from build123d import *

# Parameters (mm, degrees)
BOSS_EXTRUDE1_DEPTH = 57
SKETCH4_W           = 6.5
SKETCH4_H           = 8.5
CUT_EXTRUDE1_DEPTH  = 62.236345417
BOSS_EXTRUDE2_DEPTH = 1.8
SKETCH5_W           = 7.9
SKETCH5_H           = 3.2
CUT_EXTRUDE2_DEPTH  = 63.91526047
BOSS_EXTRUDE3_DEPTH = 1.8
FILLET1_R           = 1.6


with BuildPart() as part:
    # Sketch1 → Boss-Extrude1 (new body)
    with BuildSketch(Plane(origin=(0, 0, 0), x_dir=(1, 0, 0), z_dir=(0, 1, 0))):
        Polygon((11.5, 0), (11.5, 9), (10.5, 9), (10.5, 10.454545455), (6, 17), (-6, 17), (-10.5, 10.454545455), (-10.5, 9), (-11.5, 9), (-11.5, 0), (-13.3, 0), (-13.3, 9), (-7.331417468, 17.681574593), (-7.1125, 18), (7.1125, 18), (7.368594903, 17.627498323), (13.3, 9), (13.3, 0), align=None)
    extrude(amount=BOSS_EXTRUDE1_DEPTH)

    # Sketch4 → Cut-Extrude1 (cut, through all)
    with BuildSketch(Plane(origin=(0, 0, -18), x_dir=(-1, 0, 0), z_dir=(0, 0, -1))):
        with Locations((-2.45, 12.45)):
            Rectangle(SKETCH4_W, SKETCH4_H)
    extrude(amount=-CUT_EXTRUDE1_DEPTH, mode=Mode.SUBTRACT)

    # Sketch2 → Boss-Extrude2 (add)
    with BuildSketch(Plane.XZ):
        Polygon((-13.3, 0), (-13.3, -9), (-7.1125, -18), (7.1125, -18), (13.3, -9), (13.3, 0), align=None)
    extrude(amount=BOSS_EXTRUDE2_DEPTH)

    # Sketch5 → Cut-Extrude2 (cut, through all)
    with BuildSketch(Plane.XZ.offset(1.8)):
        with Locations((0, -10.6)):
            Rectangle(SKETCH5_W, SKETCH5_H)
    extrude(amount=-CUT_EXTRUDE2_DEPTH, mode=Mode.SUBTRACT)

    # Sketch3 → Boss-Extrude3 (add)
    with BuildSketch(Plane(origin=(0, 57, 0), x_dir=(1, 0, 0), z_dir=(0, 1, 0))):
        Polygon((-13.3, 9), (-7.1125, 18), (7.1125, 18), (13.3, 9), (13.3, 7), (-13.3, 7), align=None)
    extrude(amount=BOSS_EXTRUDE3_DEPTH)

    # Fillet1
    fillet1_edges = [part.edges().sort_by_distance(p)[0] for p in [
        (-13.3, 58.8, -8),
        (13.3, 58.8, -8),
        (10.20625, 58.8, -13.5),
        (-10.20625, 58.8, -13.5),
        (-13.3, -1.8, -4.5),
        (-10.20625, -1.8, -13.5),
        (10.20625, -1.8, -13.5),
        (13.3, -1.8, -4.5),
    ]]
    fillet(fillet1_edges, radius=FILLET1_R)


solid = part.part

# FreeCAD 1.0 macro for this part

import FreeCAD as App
import Part
import Sketcher
from FreeCAD import Vector


def edges_at(feature, points):
    """Names of the edges that pass closest to the given points."""
    edges = feature.Shape.Edges
    near = lambda p: min(range(len(edges)), key=lambda i: edges[i].distToShape(Part.Vertex(*p))[0])
    return sorted({f"Edge{near(p) + 1}" for p in points})


def add_polygon(sketch, points):
    """Adds a closed chain of lines whose ends are joined by coincident constraints."""
    first, n = sketch.GeometryCount, len(points)
    for a, b in zip(points, points[1:] + points[:1]):
        sketch.addGeometry(Part.LineSegment(App.Vector(*a, 0), App.Vector(*b, 0)), False)
    for i in range(n):
        sketch.addConstraint(Sketcher.Constraint("Coincident", first + i, 2, first + (i + 1) % n, 1))

doc = App.newDocument("Part")
body = doc.addObject("PartDesign::Body", "Body")

sketch1 = doc.addObject("Sketcher::SketchObject", "Sketch")
body.addObject(sketch1)
sketch1.AttachmentSupport = (doc.XZ_Plane, [""])
sketch1.MapMode = "FlatFace"
add_polygon(sketch1, [(11.5, -9), (11.5, 0), (13.3, 0), (13.3, -9), (7.37, -17.63), (7.11, -18), (-7.11, -18), (-7.33, -17.68), (-13.3, -9), (-13.3, 0), (-11.5, 0), (-11.5, -9), (-10.5, -9), (-10.5, -10.45), (-6, -17), (6, -17), (10.5, -10.45), (10.5, -9)])
sketch1.addConstraint(Sketcher.Constraint("Vertical", 0))
sketch1.addConstraint(Sketcher.Constraint("Horizontal", 1))
sketch1.addConstraint(Sketcher.Constraint("Vertical", 2))
sketch1.addConstraint(Sketcher.Constraint("Horizontal", 5))
sketch1.addConstraint(Sketcher.Constraint("Vertical", 8))
sketch1.addConstraint(Sketcher.Constraint("Horizontal", 9))
sketch1.addConstraint(Sketcher.Constraint("Vertical", 10))
sketch1.addConstraint(Sketcher.Constraint("Horizontal", 11))
sketch1.addConstraint(Sketcher.Constraint("Vertical", 12))
sketch1.addConstraint(Sketcher.Constraint("Horizontal", 14))
sketch1.addConstraint(Sketcher.Constraint("Vertical", 16))
sketch1.addConstraint(Sketcher.Constraint("Horizontal", 17))
sketch1.addConstraint(Sketcher.Constraint("Symmetric", 1, 2, 8, 2, -1, 1))
sketch1.addConstraint(Sketcher.Constraint("Symmetric", 0, 2, 9, 2, -2))
sketch1.addConstraint(Sketcher.Constraint("Symmetric", 12, 2, 15, 2, -2))
sketch1.addConstraint(Sketcher.Constraint("Parallel", 3, 4))
sketch1.addConstraint(Sketcher.Constraint("Parallel", 6, 7))
sketch1.addConstraint(Sketcher.Constraint("Parallel", 7, 13))
sketch1.addConstraint(Sketcher.Constraint("Parallel", 4, 15))
sketch1.addConstraint(Sketcher.Constraint("Horizontal", 2, 2, 7, 2))
sketch1.addConstraint(Sketcher.Constraint("Horizontal", 7, 2, 10, 2))
sketch1.addConstraint(Sketcher.Constraint("Horizontal", 11, 2, 16, 2))
sketch1.addConstraint(Sketcher.Constraint("Equal", 13, 15))
sketch1.addConstraint(Sketcher.Constraint("DistanceX", 11, 1, 11, 2, 1.0))
sketch1.addConstraint(Sketcher.Constraint("DistanceX", 14, 1, 14, 2, 12.0))
sketch1.addConstraint(Sketcher.Constraint("DistanceY", 0, 1, 0, 2, 9.0))
sketch1.addConstraint(Sketcher.Constraint("DistanceX", 1, 1, 1, 2, 1.8))
sketch1.addConstraint(Sketcher.Constraint("DistanceY", 4, 2, -1, 1, 18.0))
sketch1.addConstraint(Sketcher.Constraint("DistanceY", 13, 2, -1, 1, 17.0))
sketch1.addConstraint(Sketcher.Constraint("DistanceX", 9, 2, 0, 2, 23.0))
sketch1.addConstraint(Sketcher.Constraint("DistanceX", 5, 2, 5, 1, 14.225))
sketch1.addConstraint(Sketcher.Constraint("DistanceY", 3, 2, -1, 1, 17.627498))
sketch1.addConstraint(Sketcher.Constraint("Distance", 6, 0.386419))
pad1 = doc.addObject("PartDesign::Pad", "Pad")
body.addObject(pad1)
pad1.Profile = sketch1
pad1.Length = 57
pad1.Reversed = True

sketch2 = doc.addObject("Sketcher::SketchObject", "Sketch001")
body.addObject(sketch2)
sketch2.AttachmentSupport = (doc.XY_Plane, [""])
sketch2.MapMode = "FlatFace"
sketch2.AttachmentOffset = App.Placement(Vector(0, 0, -18), App.Rotation())
add_polygon(sketch2, [(6, 17), (6, 8), (-1, 8), (-1, 17)])
sketch2.addConstraint(Sketcher.Constraint("Vertical", 0))
sketch2.addConstraint(Sketcher.Constraint("Horizontal", 1))
sketch2.addConstraint(Sketcher.Constraint("Vertical", 2))
sketch2.addConstraint(Sketcher.Constraint("Horizontal", 3))
sketch2.addConstraint(Sketcher.Constraint("DistanceX", 1, 2, 1, 1, 6.5))
sketch2.addConstraint(Sketcher.Constraint("DistanceY", 0, 2, 0, 1, 8.5))
sketch2.addConstraint(Sketcher.Constraint("DistanceX", -1, 1, 0, 2, 5.7))
sketch2.addConstraint(Sketcher.Constraint("DistanceY", -1, 1, 0, 2, 8.2))
pocket1 = doc.addObject("PartDesign::Pocket", "Pocket")
body.addObject(pocket1)
pocket1.Profile = sketch2
pocket1.Type = "ThroughAll"
pocket1.Reversed = True

sketch3 = doc.addObject("Sketcher::SketchObject", "Sketch002")
body.addObject(sketch3)
sketch3.AttachmentSupport = (doc.XZ_Plane, [""])
sketch3.MapMode = "FlatFace"
add_polygon(sketch3, [(-13, 0), (-13, -9), (-7, -18), (7, -18), (13, -9), (13, 0)])
sketch3.addConstraint(Sketcher.Constraint("Vertical", 0))
sketch3.addConstraint(Sketcher.Constraint("Horizontal", 2))
sketch3.addConstraint(Sketcher.Constraint("Vertical", 4))
sketch3.addConstraint(Sketcher.Constraint("Horizontal", 5))
sketch3.addConstraint(Sketcher.Constraint("Symmetric", 4, 2, 5, 2, -1, 1))
sketch3.addConstraint(Sketcher.Constraint("Horizontal", 0, 2, 3, 2))
sketch3.addConstraint(Sketcher.Constraint("Equal", 1, 3))
sketch3.addConstraint(Sketcher.Constraint("DistanceY", 0, 2, 0, 1, 9.0))
sketch3.addConstraint(Sketcher.Constraint("DistanceX", 5, 2, 5, 1, 26.6))
sketch3.addConstraint(Sketcher.Constraint("DistanceY", 1, 2, -1, 1, 18.0))
sketch3.addConstraint(Sketcher.Constraint("DistanceX", 2, 1, 2, 2, 14.225))
pad2 = doc.addObject("PartDesign::Pad", "Pad001")
body.addObject(pad2)
pad2.Profile = sketch3
pad2.Length = 1.8

sketch4 = doc.addObject("Sketcher::SketchObject", "Sketch003")
body.addObject(sketch4)
sketch4.AttachmentSupport = (doc.XZ_Plane, [""])
sketch4.MapMode = "FlatFace"
sketch4.AttachmentOffset = App.Placement(Vector(0, 0, 1.8), App.Rotation())
add_polygon(sketch4, [(-4, -9), (-4, -12.2), (4, -12.2), (4, -9)])
sketch4.addConstraint(Sketcher.Constraint("Vertical", 0))
sketch4.addConstraint(Sketcher.Constraint("Horizontal", 1))
sketch4.addConstraint(Sketcher.Constraint("Vertical", 2))
sketch4.addConstraint(Sketcher.Constraint("Horizontal", 3))
sketch4.addConstraint(Sketcher.Constraint("DistanceX", 1, 1, 1, 2, 7.9))
sketch4.addConstraint(Sketcher.Constraint("DistanceY", 0, 2, 0, 1, 3.2))
sketch4.addConstraint(Sketcher.Constraint("DistanceY", 2, 2, -1, 1, 9.0))
sketch4.addConstraint(Sketcher.Constraint("DistanceX", 0, 2, -1, 1, 3.95))
pocket2 = doc.addObject("PartDesign::Pocket", "Pocket001")
body.addObject(pocket2)
pocket2.Profile = sketch4
pocket2.Type = "ThroughAll"

sketch5 = doc.addObject("Sketcher::SketchObject", "Sketch004")
body.addObject(sketch5)
sketch5.AttachmentSupport = (doc.XZ_Plane, [""])
sketch5.MapMode = "FlatFace"
sketch5.AttachmentOffset = App.Placement(Vector(0, 0, -57), App.Rotation())
add_polygon(sketch5, [(-7.1, -18), (-13.3, -9), (-13.3, -7), (13.3, -7), (13.3, -9), (7.1, -18)])
sketch5.addConstraint(Sketcher.Constraint("Vertical", 1))
sketch5.addConstraint(Sketcher.Constraint("Horizontal", 2))
sketch5.addConstraint(Sketcher.Constraint("Vertical", 3))
sketch5.addConstraint(Sketcher.Constraint("Horizontal", 5))
sketch5.addConstraint(Sketcher.Constraint("Symmetric", 0, 2, 3, 2, -2))
sketch5.addConstraint(Sketcher.Constraint("Equal", 0, 4))
sketch5.addConstraint(Sketcher.Constraint("DistanceY", 1, 1, 1, 2, 2.0))
sketch5.addConstraint(Sketcher.Constraint("DistanceX", 2, 1, 2, 2, 26.6))
sketch5.addConstraint(Sketcher.Constraint("DistanceY", 0, 2, -1, 1, 9.0))
sketch5.addConstraint(Sketcher.Constraint("DistanceY", 4, 2, -1, 1, 18.0))
sketch5.addConstraint(Sketcher.Constraint("DistanceX", 5, 2, 5, 1, 14.225))
pad3 = doc.addObject("PartDesign::Pad", "Pad002")
body.addObject(pad3)
pad3.Profile = sketch5
pad3.Length = 1.8
pad3.Reversed = True
doc.recompute()

fillet = doc.addObject("PartDesign::Fillet", "Fillet")
body.addObject(fillet)
fillet.Base = (pad3, edges_at(pad3, [
    (-13.3, 58.8, -8),
    (13.3, 58.8, -8),
    (10.206, 58.8, -13.5),
    (-10.206, 58.8, -13.5),
    (-13.3, -1.8, -4.5),
    (-10.206, -1.8, -13.5),
    (10.206, -1.8, -13.5),
    (13.3, -1.8, -4.5),
]))
fillet.Radius = 1.6

doc.recompute()
